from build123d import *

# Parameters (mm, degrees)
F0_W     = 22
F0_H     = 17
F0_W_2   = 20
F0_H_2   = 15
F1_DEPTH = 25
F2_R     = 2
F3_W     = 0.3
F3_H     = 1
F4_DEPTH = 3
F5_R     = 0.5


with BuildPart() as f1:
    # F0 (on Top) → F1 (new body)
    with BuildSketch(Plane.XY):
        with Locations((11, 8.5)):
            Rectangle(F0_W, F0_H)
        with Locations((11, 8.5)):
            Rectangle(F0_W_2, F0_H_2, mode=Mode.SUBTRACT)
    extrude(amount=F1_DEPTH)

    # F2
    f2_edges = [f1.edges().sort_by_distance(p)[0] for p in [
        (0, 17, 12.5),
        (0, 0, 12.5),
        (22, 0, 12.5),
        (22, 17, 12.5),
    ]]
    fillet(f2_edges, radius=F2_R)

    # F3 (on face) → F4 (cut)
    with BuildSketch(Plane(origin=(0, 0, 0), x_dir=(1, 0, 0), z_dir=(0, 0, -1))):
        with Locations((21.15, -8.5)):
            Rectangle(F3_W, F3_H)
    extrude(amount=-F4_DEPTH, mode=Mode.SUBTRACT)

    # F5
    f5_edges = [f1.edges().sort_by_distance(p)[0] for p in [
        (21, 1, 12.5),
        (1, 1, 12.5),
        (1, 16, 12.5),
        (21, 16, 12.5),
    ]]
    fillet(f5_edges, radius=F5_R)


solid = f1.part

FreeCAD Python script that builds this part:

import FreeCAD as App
import Part
import Sketcher

V = App.Vector


def edges_at(feature, points):
    """Names of the edges that pass closest to the given points."""
    edges = feature.Shape.Edges
    near = lambda p: min(range(len(edges)), key=lambda i: edges[i].distToShape(Part.Vertex(*p))[0])
    return sorted({f"Edge{near(p) + 1}" for p in points})


def add_polygon(sketch, points):
    """Adds a closed chain of lines whose ends are joined by coincident constraints."""
    first, n = sketch.GeometryCount, len(points)
    for a, b in zip(points, points[1:] + points[:1]):
        sketch.addGeometry(Part.LineSegment(App.Vector(*a, 0), App.Vector(*b, 0)), False)
    for i in range(n):
        sketch.addConstraint(Sketcher.Constraint("Coincident", first + i, 2, first + (i + 1) % n, 1))

doc = App.newDocument("Part")
body = doc.addObject("PartDesign::Body", "Body")

# Sketch on XY plane
sketch1 = doc.addObject("Sketcher::SketchObject", "Sketch")
body.addObject(sketch1)
sketch1.AttachmentSupport = (doc.XY_Plane, [""])
sketch1.MapMode = "FlatFace"
add_polygon(sketch1, [(0, 17), (0, 0), (22, 0), (22, 17)])  # lines 0-3
add_polygon(sketch1, [(21, 1), (1, 1), (1, 16), (21, 16)])  # lines 4-7
sketch1.addConstraint(Sketcher.Constraint("Vertical", 0))
sketch1.addConstraint(Sketcher.Constraint("Horizontal", 1))
sketch1.addConstraint(Sketcher.Constraint("Vertical", 2))
sketch1.addConstraint(Sketcher.Constraint("Horizontal", 3))
sketch1.addConstraint(Sketcher.Constraint("Horizontal", 4))
sketch1.addConstraint(Sketcher.Constraint("Vertical", 5))
sketch1.addConstraint(Sketcher.Constraint("Horizontal", 6))
sketch1.addConstraint(Sketcher.Constraint("Vertical", 7))
sketch1.addConstraint(Sketcher.Constraint("Coincident", 0, 2, -1, 1))
sketch1.addConstraint(Sketcher.Constraint("DistanceX", 1, 1, 1, 2, 22.0))
sketch1.addConstraint(Sketcher.Constraint("DistanceX", 4, 2, 4, 1, 20.0))
sketch1.addConstraint(Sketcher.Constraint("DistanceY", 0, 2, 0, 1, 17.0))
sketch1.addConstraint(Sketcher.Constraint("DistanceY", 5, 1, 5, 2, 15.0))
sketch1.addConstraint(Sketcher.Constraint("DistanceX", -1, 1, 4, 2, 1.0))
sketch1.addConstraint(Sketcher.Constraint("DistanceY", -1, 1, 4, 2, 1.0))
pad1 = doc.addObject("PartDesign::Pad", "Pad")
body.addObject(pad1)
pad1.Profile = sketch1
pad1.Length = 25
doc.recompute()

fillet = doc.addObject("PartDesign::Fillet", "Fillet")
body.addObject(fillet)
fillet.Base = (pad1, edges_at(pad1, [
    (0, 17, 12.5),
    (0, 0, 12.5),
    (22, 0, 12.5),
    (22, 17, 12.5),
]))
fillet.Radius = 2

# Sketch on XY plane
sketch2 = doc.addObject("Sketcher::SketchObject", "Sketch001")
body.addObject(sketch2)
sketch2.AttachmentSupport = (doc.XY_Plane, [""])
sketch2.MapMode = "FlatFace"
add_polygon(sketch2, [(21, 8), (21, 9), (21.3, 9), (21.3, 8)])  # lines 0-3
sketch2.addConstraint(Sketcher.Constraint("Vertical", 0))
sketch2.addConstraint(Sketcher.Constraint("Horizontal", 1))
sketch2.addConstraint(Sketcher.Constraint("Vertical", 2))
sketch2.addConstraint(Sketcher.Constraint("Horizontal", 3))
sketch2.addConstraint(Sketcher.Constraint("DistanceY", 0, 1, 0, 2, 1.0))
sketch2.addConstraint(Sketcher.Constraint("DistanceX", 1, 1, 1, 2, 0.3))
sketch2.addConstraint(Sketcher.Constraint("DistanceX", -1, 1, 0, 2, 21.0))
sketch2.addConstraint(Sketcher.Constraint("DistanceY", -1, 1, 0, 2, 9.0))
pocket1 = doc.addObject("PartDesign::Pocket", "Pocket")
body.addObject(pocket1)
pocket1.Profile = sketch2
pocket1.Length = 3
pocket1.Reversed = True
doc.recompute()

fillet2 = doc.addObject("PartDesign::Fillet", "Fillet001")
body.addObject(fillet2)
fillet2.Base = (pocket1, edges_at(pocket1, [
    (21, 1, 12.5),
    (1, 1, 12.5),
    (1, 16, 12.5),
    (21, 16, 12.5),
]))
fillet2.Radius = 0.5

doc.recompute()
